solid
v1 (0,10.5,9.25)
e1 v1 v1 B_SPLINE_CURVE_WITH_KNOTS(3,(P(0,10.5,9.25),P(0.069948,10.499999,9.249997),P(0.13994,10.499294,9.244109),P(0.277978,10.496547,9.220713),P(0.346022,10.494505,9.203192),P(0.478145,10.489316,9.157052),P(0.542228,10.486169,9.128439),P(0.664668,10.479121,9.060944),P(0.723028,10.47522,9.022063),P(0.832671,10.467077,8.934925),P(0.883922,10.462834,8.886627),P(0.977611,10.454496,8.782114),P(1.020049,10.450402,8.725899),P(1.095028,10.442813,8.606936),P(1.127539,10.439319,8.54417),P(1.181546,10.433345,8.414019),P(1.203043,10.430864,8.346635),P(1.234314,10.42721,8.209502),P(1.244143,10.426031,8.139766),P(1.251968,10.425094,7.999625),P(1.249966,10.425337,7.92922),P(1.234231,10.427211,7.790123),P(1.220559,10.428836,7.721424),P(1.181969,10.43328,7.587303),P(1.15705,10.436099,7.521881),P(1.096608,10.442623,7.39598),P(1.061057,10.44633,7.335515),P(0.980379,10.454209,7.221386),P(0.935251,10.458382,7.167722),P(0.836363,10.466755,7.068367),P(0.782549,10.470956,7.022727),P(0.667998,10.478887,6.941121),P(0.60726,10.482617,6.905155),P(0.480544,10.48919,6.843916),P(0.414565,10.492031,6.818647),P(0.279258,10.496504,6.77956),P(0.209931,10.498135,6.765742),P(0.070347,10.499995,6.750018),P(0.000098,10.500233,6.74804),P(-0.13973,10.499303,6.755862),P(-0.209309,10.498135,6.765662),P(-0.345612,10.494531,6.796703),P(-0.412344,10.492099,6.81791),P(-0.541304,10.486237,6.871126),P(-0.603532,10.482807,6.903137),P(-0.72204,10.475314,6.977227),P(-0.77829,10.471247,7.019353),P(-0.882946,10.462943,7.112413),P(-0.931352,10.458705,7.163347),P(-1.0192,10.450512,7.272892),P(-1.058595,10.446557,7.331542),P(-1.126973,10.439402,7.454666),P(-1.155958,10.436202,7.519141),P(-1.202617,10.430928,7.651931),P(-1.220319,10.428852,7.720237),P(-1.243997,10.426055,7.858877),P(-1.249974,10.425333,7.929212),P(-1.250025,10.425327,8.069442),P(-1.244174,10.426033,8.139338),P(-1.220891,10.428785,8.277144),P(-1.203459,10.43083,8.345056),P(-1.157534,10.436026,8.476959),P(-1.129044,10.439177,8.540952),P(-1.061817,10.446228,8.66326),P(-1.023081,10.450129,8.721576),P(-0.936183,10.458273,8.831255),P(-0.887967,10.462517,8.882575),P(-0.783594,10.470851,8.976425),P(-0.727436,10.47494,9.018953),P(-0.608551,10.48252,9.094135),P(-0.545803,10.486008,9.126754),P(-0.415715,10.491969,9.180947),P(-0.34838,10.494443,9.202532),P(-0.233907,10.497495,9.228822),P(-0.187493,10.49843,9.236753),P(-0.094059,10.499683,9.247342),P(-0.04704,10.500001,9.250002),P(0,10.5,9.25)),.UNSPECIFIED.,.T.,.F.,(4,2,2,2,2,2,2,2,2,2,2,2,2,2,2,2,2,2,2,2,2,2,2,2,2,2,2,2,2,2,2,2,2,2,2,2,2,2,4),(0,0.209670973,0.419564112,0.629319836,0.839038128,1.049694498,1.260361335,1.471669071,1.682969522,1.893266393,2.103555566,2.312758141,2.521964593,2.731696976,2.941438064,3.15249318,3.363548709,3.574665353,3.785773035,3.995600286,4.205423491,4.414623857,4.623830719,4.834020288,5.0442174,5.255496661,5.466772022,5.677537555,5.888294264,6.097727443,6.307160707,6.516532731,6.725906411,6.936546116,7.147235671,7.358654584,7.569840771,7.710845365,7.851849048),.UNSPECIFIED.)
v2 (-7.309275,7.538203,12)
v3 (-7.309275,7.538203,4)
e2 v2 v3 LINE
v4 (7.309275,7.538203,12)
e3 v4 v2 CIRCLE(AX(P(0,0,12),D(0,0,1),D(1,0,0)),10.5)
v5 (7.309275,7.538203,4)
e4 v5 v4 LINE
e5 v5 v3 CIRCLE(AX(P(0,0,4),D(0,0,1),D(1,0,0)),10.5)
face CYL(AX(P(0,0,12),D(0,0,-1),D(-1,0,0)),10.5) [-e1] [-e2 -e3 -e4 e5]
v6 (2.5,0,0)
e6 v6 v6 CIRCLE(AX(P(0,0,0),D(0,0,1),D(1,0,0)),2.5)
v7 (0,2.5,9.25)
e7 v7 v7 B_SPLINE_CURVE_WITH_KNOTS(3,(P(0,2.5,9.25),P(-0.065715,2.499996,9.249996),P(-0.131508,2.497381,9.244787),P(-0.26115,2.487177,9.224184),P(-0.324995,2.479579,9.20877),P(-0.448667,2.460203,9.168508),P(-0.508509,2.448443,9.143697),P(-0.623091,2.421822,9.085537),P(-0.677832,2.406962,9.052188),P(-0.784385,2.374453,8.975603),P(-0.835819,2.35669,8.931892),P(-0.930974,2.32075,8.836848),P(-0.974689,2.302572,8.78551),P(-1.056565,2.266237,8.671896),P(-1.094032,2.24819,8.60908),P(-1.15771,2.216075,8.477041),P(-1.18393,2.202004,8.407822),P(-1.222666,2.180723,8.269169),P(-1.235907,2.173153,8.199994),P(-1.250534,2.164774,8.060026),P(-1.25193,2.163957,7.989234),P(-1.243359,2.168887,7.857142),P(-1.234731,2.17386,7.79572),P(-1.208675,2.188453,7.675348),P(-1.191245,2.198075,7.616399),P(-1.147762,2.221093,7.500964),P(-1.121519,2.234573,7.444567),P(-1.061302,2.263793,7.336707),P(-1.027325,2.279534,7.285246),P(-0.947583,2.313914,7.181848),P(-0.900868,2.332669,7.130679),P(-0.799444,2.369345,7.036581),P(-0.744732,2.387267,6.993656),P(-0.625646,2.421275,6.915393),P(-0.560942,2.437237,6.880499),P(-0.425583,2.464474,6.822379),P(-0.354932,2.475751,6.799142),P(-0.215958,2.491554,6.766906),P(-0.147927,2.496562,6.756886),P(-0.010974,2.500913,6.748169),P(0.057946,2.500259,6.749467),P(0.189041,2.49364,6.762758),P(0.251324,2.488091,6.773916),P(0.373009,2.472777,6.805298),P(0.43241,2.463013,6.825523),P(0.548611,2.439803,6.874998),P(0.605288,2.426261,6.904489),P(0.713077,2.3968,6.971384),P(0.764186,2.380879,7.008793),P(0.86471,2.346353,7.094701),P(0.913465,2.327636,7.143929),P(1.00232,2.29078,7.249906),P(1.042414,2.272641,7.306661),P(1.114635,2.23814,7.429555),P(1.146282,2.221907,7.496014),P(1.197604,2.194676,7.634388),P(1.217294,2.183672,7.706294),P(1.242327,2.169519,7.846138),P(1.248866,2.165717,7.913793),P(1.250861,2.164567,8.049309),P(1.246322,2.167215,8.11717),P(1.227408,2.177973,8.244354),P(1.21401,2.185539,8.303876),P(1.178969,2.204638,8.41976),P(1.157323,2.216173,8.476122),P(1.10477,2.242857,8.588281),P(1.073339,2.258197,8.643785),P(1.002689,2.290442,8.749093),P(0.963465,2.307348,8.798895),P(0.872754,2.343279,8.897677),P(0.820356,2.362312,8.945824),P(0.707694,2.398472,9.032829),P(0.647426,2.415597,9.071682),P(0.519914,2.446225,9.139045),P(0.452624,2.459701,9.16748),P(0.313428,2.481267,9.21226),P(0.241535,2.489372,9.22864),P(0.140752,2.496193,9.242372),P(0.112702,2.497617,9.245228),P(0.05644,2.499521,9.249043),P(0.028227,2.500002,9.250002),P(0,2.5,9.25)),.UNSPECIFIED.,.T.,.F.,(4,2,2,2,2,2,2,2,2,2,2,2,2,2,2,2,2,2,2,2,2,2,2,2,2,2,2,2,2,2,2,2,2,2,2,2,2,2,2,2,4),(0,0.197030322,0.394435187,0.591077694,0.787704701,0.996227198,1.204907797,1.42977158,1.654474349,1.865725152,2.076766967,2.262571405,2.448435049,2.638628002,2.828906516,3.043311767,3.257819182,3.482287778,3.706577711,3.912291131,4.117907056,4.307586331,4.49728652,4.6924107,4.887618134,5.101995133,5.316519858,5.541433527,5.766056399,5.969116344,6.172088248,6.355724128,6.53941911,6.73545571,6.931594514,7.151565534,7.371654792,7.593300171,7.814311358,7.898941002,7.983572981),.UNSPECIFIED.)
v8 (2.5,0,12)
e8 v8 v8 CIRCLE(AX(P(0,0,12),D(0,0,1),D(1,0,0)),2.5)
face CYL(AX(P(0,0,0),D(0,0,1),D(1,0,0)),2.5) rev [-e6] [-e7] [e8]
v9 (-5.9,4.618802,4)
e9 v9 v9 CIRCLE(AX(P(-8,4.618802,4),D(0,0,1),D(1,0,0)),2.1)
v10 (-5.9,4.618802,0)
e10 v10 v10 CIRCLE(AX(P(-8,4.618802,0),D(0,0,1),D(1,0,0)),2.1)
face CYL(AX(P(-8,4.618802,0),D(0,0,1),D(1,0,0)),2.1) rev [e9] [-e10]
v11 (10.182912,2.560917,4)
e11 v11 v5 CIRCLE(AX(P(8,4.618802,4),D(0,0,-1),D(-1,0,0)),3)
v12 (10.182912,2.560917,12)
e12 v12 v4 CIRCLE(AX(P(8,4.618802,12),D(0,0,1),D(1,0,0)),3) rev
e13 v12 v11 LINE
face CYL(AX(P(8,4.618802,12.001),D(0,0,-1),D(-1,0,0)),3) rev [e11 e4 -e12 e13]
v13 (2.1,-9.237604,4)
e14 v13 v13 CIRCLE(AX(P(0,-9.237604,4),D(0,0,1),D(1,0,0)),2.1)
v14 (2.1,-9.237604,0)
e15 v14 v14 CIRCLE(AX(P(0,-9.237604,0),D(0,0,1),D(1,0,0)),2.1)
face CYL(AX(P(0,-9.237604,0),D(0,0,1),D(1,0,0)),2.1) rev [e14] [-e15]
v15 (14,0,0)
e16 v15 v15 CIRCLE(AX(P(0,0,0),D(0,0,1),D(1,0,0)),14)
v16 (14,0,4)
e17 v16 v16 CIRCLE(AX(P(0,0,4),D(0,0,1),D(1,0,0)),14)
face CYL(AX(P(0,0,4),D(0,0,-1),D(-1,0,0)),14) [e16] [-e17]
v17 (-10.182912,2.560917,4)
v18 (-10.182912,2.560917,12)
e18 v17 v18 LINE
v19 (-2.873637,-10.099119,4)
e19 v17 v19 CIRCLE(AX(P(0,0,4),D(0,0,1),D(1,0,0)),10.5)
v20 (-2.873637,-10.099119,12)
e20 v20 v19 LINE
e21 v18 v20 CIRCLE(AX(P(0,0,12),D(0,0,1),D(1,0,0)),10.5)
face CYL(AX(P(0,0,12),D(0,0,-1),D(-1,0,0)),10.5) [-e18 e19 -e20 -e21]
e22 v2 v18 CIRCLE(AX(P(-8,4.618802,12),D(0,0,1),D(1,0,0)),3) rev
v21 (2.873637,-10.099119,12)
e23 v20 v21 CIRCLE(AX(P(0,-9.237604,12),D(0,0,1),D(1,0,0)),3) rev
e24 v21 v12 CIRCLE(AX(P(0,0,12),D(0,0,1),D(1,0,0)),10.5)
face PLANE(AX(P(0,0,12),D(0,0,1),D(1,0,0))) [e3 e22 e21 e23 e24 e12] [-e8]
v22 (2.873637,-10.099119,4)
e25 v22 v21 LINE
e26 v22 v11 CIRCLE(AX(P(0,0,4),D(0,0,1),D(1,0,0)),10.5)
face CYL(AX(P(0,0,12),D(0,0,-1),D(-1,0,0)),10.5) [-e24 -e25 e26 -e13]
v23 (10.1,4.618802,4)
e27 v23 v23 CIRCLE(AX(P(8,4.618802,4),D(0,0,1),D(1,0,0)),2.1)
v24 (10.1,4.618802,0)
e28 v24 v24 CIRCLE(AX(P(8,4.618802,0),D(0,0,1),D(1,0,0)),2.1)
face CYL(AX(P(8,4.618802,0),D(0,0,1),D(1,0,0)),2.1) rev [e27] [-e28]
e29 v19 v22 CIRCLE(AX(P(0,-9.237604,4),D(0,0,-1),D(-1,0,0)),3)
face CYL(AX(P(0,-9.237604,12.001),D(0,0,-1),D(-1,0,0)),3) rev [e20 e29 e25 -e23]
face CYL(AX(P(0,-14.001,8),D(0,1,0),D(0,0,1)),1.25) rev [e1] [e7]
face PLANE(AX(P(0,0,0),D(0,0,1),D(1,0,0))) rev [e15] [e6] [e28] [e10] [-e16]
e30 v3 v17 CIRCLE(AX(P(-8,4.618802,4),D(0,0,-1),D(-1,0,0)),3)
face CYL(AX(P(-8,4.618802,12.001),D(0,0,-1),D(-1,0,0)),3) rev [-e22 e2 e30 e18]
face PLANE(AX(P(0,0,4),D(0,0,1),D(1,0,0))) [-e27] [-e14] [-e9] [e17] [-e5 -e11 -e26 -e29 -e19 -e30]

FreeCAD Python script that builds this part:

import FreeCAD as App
import Part
import Sketcher
from FreeCAD import Vector

doc = App.newDocument("Part")
body = doc.addObject("PartDesign::Body", "Body")

# Sketch on XY plane
sketch1 = body.newObject("Sketcher::SketchObject", "Sketch")
sketch1.AttachmentSupport = (doc.getObject("XY_Plane"), [""])
sketch1.MapMode = "FlatFace"
sketch1.addGeometry(Part.Circle(Vector(0, 0, 0), Vector(0, 0, 1), 14), False)
sketch1.addConstraint([
    Sketcher.Constraint("Coincident", 0, 3, -1, 1),
    Sketcher.Constraint("Diameter", 0, 28.0),
])
pad1 = body.newObject("PartDesign::Pad", "Pad")
pad1.Profile = sketch1
pad1.Length = 4

# Sketch on XY plane
sketch2 = body.newObject("Sketcher::SketchObject", "Sketch001")
sketch2.AttachmentSupport = (doc.getObject("XY_Plane"), [""])
sketch2.MapMode = "FlatFace"
sketch2.AttachmentOffset = App.Placement(Vector(0, 0, 4), App.Rotation())
sketch2.addGeometry([
    Part.Circle(Vector(-8, 4.6, 0), Vector(0, 0, 1), 2.1),
    Part.Circle(Vector(8, 4.6, 0), Vector(0, 0, 1), 2.1),
    Part.Circle(Vector(0, -9.2, 0), Vector(0, 0, 1), 2.1),
], False)
sketch2.addConstraint([
    Sketcher.Constraint("Equal", 0, 1),
    Sketcher.Constraint("Equal", 1, 2),
    Sketcher.Constraint("Symmetric", 0, 3, 1, 3, -2),
    Sketcher.Constraint("PointOnObject", 2, 3, -2),
    Sketcher.Constraint("Diameter", 0, 4.2),
    Sketcher.Constraint("DistanceX", 0, 3, -1, 1, 8.0),
    Sketcher.Constraint("DistanceY", -1, 1, 0, 3, 4.618802),
    Sketcher.Constraint("DistanceY", 2, 3, -1, 1, 9.237604),
])
pocket1 = body.newObject("PartDesign::Pocket", "Pocket")
pocket1.Profile = sketch2
pocket1.Type = "ThroughAll"

# Sketch on XY plane
sketch3 = body.newObject("Sketcher::SketchObject", "Sketch002")
sketch3.AttachmentSupport = (doc.getObject("XY_Plane"), [""])
sketch3.MapMode = "FlatFace"
sketch3.AttachmentOffset = App.Placement(Vector(0, 0, 4), App.Rotation())
sketch3.addGeometry(Part.Circle(Vector(0, 0, 0), Vector(0, 0, 1), 10), False)
sketch3.addConstraint([
    Sketcher.Constraint("Coincident", 0, 3, -1, 1),
    Sketcher.Constraint("Diameter", 0, 21.0),
])
pad2 = body.newObject("PartDesign::Pad", "Pad001")
pad2.Profile = sketch3
pad2.Length = 8

# Sketch on XY plane
sketch4 = body.newObject("Sketcher::SketchObject", "Sketch003")
sketch4.AttachmentSupport = (doc.getObject("XY_Plane"), [""])
sketch4.MapMode = "FlatFace"
sketch4.AttachmentOffset = App.Placement(Vector(0, 0, 4), App.Rotation())
sketch4.addGeometry(Part.Circle(Vector(8, 4.6, 0), Vector(0, 0, 1), 3), False)
sketch4.addConstraint([
    Sketcher.Constraint("Diameter", 0, 6.0),
    Sketcher.Constraint("DistanceX", -1, 1, 0, 3, 8.0),
    Sketcher.Constraint("DistanceY", -1, 1, 0, 3, 4.618802),
])
pocket2 = body.newObject("PartDesign::Pocket", "Pocket001")
pocket2.Profile = sketch4
pocket2.Type = "UpToFirst"
pocket2.Reversed = True

# Sketch on XY plane
sketch5 = body.newObject("Sketcher::SketchObject", "Sketch004")
sketch5.AttachmentSupport = (doc.getObject("XY_Plane"), [""])
sketch5.MapMode = "FlatFace"
sketch5.AttachmentOffset = App.Placement(Vector(0, 0, 4), App.Rotation())
sketch5.addGeometry(Part.Circle(Vector(-8, 4.6, 0), Vector(0, 0, 1), 3), False)
sketch5.addConstraint([
    Sketcher.Constraint("Diameter", 0, 6.0),
    Sketcher.Constraint("DistanceX", 0, 3, -1, 1, 8.0),
    Sketcher.Constraint("DistanceY", -1, 1, 0, 3, 4.618802),
])
pocket3 = body.newObject("PartDesign::Pocket", "Pocket002")
pocket3.Profile = sketch5
pocket3.Type = "UpToFirst"
pocket3.Reversed = True

# Sketch on XY plane
sketch6 = body.newObject("Sketcher::SketchObject", "Sketch005")
sketch6.AttachmentSupport = (doc.getObject("XY_Plane"), [""])
sketch6.MapMode = "FlatFace"
sketch6.AttachmentOffset = App.Placement(Vector(0, 0, 4), App.Rotation())
sketch6.addGeometry(Part.Circle(Vector(0, -9.2, 0), Vector(0, 0, 1), 3), False)
sketch6.addConstraint([
    Sketcher.Constraint("PointOnObject", 0, 3, -2),
    Sketcher.Constraint("Diameter", 0, 6.0),
    Sketcher.Constraint("DistanceY", 0, 3, -1, 1, 9.237604),
])
pocket4 = body.newObject("PartDesign::Pocket", "Pocket003")
pocket4.Profile = sketch6
pocket4.Type = "UpToFirst"
pocket4.Reversed = True

# Sketch on XY plane
sketch7 = body.newObject("Sketcher::SketchObject", "Sketch006")
sketch7.AttachmentSupport = (doc.getObject("XY_Plane"), [""])
sketch7.MapMode = "FlatFace"
sketch7.AttachmentOffset = App.Placement(Vector(0, 0, 12), App.Rotation())
sketch7.addGeometry(Part.Circle(Vector(0, 0, 0), Vector(0, 0, 1), 2.5), False)
sketch7.addConstraint([
    Sketcher.Constraint("Coincident", 0, 3, -1, 1),
    Sketcher.Constraint("Diameter", 0, 5.0),
])
pocket5 = body.newObject("PartDesign::Pocket", "Pocket004")
pocket5.Profile = sketch7
pocket5.Type = "ThroughAll"

# Sketch on XZ plane
sketch8 = body.newObject("Sketcher::SketchObject", "Sketch007")
sketch8.AttachmentSupport = (doc.getObject("XZ_Plane"), [""])
sketch8.MapMode = "FlatFace"
sketch8.AttachmentOffset = App.Placement(Vector(0, 0, -10.5), App.Rotation())
sketch8.addGeometry(Part.Circle(Vector(0, 8, 0), Vector(0, 0, 1), 1.2), False)
sketch8.addConstraint([
    Sketcher.Constraint("PointOnObject", 0, 3, -2),
    Sketcher.Constraint("Diameter", 0, 2.5),
    Sketcher.Constraint("DistanceY", -1, 1, 0, 3, 8.0),
])
pocket6 = body.newObject("PartDesign::Pocket", "Pocket005")
pocket6.Profile = sketch8
pocket6.Type = "UpToFirst"
pocket6.Reversed = True

doc.recompute()
